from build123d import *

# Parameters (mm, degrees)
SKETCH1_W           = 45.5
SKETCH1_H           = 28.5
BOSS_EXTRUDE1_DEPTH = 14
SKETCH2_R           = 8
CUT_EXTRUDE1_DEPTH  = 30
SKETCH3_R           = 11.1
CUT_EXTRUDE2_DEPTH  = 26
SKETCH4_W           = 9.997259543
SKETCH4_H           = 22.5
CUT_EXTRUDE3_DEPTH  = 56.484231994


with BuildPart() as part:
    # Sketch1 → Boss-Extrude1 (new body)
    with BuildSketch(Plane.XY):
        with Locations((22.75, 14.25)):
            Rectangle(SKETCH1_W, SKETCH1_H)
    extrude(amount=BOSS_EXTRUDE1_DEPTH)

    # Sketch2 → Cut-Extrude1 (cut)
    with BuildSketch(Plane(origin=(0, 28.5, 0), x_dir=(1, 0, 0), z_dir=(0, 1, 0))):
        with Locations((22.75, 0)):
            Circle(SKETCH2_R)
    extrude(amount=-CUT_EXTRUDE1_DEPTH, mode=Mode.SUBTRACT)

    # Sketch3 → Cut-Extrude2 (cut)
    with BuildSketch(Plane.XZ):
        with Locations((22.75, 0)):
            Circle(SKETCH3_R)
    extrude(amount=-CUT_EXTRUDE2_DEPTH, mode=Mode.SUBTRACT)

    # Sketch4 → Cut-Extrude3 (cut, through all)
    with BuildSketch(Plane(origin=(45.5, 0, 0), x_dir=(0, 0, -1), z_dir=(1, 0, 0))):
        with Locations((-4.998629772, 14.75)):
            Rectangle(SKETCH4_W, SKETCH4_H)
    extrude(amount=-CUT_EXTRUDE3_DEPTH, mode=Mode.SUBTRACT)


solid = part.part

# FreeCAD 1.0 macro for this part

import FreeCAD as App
import Part
import Sketcher

V = App.Vector


def add_polygon(sketch, points):
    """Adds a closed chain of lines whose ends are joined by coincident constraints."""
    first, n = sketch.GeometryCount, len(points)
    for a, b in zip(points, points[1:] + points[:1]):
        sketch.addGeometry(Part.LineSegment(App.Vector(*a, 0), App.Vector(*b, 0)), False)
    for i in range(n):
        sketch.addConstraint(Sketcher.Constraint("Coincident", first + i, 2, first + (i + 1) % n, 1))

doc = App.newDocument("Part")
body = doc.addObject("PartDesign::Body", "Body")

sketch1 = doc.addObject("Sketcher::SketchObject", "Sketch")
body.addObject(sketch1)
sketch1.AttachmentSupport = (doc.XY_Plane, [""])
sketch1.MapMode = "FlatFace"
add_polygon(sketch1, [(0, 28.5), (0, 0), (45.5, 0), (45.5, 28.5)])
sketch1.addConstraint([
    Sketcher.Constraint("Vertical", 0),
    Sketcher.Constraint("Horizontal", 1),
    Sketcher.Constraint("Vertical", 2),
    Sketcher.Constraint("Horizontal", 3),
    Sketcher.Constraint("Coincident", 0, 2, -1, 1),
    Sketcher.Constraint("DistanceX", 1, 1, 1, 2, 45.5),
    Sketcher.Constraint("DistanceY", 0, 2, 0, 1, 28.5),
])
pad1 = doc.addObject("PartDesign::Pad", "Pad")
body.addObject(pad1)
pad1.Profile = sketch1
pad1.Length = 14

sketch2 = doc.addObject("Sketcher::SketchObject", "Sketch001")
body.addObject(sketch2)
sketch2.AttachmentSupport = (doc.XZ_Plane, [""])
sketch2.MapMode = "FlatFace"
sketch2.AttachmentOffset = App.Placement(V(0, 0, -28.5), App.Rotation())
sketch2.addGeometry(Part.Circle(V(22.75, 0, 0), V(0, 0, 1), 8), False)
sketch2.addConstraint([
    Sketcher.Constraint("PointOnObject", 0, 3, -1),
    Sketcher.Constraint("Diameter", 0, 16.0),
    Sketcher.Constraint("DistanceX", -1, 1, 0, 3, 22.75),
])
pocket1 = doc.addObject("PartDesign::Pocket", "Pocket")
body.addObject(pocket1)
pocket1.Profile = sketch2
pocket1.Length = 30
pocket1.Reversed = True

sketch3 = doc.addObject("Sketcher::SketchObject", "Sketch002")
body.addObject(sketch3)
sketch3.AttachmentSupport = (doc.XZ_Plane, [""])
sketch3.MapMode = "FlatFace"
sketch3.addGeometry(Part.Circle(V(22.75, 0, 0), V(0, 0, 1), 11.1), False)
sketch3.addConstraint([
    Sketcher.Constraint("PointOnObject", 0, 3, -1),
    Sketcher.Constraint("Diameter", 0, 22.2),
    Sketcher.Constraint("DistanceX", -1, 1, 0, 3, 22.75),
])
pocket2 = doc.addObject("PartDesign::Pocket", "Pocket001")
body.addObject(pocket2)
pocket2.Profile = sketch3
pocket2.Length = 26

sketch4 = doc.addObject("Sketcher::SketchObject", "Sketch003")
body.addObject(sketch4)
sketch4.AttachmentSupport = (doc.YZ_Plane, [""])
sketch4.MapMode = "FlatFace"
sketch4.AttachmentOffset = App.Placement(V(0, 0, 45.5), App.Rotation())
add_polygon(sketch4, [(26, 9.99726), (3.5, 9.99726), (3.5, 0), (26, 0)])
sketch4.addConstraint([
    Sketcher.Constraint("Horizontal", 0),
    Sketcher.Constraint("Vertical", 1),
    Sketcher.Constraint("Horizontal", 2),
    Sketcher.Constraint("Vertical", 3),
    Sketcher.Constraint("PointOnObject", 1, 2, -1),
    Sketcher.Constraint("DistanceX", 0, 2, 0, 1, 22.5),
    Sketcher.Constraint("DistanceX", -1, 1, 2, 2, 26.0),
    Sketcher.Constraint("DistanceY", 1, 2, 1, 1, 9.99726),
])
pocket3 = doc.addObject("PartDesign::Pocket", "Pocket002")
body.addObject(pocket3)
pocket3.Profile = sketch4
pocket3.Type = "ThroughAll"

doc.recompute()
